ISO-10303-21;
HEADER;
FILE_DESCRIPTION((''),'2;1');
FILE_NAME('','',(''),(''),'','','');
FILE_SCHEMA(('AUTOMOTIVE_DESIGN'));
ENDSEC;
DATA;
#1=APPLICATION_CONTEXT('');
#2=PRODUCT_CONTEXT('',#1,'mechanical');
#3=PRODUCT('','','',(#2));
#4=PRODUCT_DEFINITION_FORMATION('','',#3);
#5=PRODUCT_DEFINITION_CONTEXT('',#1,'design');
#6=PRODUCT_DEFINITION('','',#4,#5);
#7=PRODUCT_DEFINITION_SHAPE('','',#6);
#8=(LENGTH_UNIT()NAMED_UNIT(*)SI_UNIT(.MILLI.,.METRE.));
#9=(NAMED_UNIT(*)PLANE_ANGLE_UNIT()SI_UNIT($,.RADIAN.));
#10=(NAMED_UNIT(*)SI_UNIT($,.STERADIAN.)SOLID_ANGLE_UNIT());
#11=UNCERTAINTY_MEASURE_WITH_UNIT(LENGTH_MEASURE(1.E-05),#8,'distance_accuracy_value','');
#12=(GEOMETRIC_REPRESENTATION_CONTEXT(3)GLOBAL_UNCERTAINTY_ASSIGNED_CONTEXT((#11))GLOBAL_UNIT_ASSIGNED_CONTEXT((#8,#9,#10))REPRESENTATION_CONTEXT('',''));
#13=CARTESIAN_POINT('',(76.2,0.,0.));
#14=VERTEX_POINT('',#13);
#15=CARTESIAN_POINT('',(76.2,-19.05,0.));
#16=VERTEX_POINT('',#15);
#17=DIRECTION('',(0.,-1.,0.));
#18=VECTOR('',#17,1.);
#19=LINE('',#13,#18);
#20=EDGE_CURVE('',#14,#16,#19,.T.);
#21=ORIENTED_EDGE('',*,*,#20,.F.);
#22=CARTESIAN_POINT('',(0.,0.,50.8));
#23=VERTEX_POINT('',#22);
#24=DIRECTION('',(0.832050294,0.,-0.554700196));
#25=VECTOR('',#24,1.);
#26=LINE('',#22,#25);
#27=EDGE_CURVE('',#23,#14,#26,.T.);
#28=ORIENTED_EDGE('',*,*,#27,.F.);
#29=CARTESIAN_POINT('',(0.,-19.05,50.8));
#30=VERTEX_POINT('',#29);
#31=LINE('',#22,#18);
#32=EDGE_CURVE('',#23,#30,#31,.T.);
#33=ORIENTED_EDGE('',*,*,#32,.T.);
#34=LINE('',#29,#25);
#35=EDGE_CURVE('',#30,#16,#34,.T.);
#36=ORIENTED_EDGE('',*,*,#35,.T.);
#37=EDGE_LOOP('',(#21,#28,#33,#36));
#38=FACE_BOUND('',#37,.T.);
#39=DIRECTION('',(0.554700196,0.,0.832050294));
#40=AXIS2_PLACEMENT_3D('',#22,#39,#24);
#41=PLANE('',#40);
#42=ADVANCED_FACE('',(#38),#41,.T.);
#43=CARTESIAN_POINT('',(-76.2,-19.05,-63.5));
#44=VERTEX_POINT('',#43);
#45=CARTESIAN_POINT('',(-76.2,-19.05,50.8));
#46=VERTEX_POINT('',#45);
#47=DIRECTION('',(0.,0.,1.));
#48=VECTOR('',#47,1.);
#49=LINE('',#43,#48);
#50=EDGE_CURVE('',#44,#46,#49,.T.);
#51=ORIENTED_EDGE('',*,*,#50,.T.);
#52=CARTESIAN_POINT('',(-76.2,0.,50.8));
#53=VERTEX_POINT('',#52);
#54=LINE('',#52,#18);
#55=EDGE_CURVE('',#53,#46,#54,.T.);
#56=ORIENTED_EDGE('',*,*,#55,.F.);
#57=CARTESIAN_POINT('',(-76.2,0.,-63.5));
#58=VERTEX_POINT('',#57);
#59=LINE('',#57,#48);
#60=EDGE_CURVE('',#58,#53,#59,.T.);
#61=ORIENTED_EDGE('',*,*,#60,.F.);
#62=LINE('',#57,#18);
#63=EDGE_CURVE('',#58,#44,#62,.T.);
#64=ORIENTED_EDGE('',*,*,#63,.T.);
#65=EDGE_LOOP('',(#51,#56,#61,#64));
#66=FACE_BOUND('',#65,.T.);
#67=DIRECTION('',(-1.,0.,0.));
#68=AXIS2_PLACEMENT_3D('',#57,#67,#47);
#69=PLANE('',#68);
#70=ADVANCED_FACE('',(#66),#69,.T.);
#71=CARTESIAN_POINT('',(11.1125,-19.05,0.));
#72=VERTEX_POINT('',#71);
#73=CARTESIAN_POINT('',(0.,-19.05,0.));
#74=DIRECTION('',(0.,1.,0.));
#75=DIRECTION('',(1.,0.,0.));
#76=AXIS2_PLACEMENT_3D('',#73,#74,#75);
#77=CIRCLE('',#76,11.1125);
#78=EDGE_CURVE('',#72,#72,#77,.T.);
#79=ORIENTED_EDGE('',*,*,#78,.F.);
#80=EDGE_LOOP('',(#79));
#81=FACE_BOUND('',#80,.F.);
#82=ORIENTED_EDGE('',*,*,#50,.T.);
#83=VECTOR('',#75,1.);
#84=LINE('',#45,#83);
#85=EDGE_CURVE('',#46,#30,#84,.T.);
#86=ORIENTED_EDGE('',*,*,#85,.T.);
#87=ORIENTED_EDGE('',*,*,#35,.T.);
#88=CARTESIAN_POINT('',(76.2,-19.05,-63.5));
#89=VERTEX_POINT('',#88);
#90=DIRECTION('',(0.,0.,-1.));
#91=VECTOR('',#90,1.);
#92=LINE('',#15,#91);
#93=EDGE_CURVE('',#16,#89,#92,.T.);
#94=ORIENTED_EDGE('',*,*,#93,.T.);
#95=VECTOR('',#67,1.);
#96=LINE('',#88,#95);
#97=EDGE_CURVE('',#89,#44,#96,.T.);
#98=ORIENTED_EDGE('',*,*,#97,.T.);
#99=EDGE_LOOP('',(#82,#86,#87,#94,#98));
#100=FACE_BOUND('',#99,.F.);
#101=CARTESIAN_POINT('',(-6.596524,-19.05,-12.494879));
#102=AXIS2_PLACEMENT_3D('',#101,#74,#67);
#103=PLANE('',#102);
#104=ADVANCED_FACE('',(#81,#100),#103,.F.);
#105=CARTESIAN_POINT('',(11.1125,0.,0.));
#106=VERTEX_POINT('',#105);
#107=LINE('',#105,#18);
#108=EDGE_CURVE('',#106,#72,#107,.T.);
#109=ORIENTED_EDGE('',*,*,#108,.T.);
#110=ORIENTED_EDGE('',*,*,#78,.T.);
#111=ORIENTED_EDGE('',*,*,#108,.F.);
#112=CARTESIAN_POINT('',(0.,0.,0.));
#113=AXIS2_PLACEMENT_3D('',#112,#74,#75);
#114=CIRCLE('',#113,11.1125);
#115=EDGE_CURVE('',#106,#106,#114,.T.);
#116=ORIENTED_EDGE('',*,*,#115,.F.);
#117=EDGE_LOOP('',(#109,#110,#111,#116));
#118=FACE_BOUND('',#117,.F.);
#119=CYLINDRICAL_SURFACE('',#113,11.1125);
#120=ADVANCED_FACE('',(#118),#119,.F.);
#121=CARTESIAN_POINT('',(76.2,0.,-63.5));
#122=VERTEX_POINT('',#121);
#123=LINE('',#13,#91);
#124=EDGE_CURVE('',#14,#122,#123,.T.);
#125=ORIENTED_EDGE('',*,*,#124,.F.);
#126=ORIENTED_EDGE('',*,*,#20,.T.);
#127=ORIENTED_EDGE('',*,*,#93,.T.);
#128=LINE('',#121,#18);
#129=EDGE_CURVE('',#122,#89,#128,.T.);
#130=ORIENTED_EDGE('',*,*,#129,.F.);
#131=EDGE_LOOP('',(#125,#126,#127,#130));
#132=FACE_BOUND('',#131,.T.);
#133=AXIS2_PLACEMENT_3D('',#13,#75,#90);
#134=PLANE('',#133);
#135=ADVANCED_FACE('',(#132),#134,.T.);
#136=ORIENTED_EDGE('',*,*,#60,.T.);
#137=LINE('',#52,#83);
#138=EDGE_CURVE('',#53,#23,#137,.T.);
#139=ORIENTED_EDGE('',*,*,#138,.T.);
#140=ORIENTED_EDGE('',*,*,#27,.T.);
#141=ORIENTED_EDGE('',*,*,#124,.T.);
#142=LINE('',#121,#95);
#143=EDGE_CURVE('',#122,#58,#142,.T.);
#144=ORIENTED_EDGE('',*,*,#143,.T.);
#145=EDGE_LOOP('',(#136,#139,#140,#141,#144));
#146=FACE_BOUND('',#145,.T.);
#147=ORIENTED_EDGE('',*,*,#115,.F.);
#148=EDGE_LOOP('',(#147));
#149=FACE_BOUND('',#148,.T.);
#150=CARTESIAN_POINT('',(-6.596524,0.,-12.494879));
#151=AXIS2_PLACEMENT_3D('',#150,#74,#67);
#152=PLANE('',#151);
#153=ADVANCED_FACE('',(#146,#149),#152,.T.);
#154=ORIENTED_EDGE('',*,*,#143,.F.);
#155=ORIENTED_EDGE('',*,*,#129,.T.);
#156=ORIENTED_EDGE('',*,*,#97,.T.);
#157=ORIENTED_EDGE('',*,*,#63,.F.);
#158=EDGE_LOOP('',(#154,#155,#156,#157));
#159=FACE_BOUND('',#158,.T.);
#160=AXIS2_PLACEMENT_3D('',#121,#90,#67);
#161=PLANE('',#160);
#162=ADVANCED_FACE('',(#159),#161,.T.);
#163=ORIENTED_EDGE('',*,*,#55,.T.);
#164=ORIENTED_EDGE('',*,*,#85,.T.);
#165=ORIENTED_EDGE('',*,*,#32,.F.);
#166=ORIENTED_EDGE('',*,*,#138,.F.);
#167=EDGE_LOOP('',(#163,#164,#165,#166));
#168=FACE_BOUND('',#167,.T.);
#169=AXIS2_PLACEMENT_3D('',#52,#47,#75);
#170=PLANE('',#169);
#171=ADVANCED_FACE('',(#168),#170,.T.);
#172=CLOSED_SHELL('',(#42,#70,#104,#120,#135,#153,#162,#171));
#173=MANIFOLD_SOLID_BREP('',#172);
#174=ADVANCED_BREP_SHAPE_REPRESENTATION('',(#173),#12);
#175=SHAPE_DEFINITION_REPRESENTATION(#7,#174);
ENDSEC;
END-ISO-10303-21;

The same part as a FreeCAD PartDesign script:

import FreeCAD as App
import Part
import Sketcher

V = App.Vector
Q = App.Units.Quantity

doc = App.newDocument("Part")
params = doc.addObject("Spreadsheet::Sheet", "Params")
for row, (alias, value) in enumerate([
    ("sketch1_width", "6 in"),
    ("sketch1_width2", "3 in"),
    ("sketch1_height", "4.5 in"),
    ("sketch1_height2", "2.5 in"),
    ("pad1_length", "0.75 in"),
    ("sketch2_diameter", "0.875 in"),
], start=1):
    params.set(f"A{row}", alias)
    params.set(f"B{row}", "=" + value)
    params.setAlias(f"B{row}", alias)

body = doc.addObject("PartDesign::Body", "Body")

sketch1 = body.newObject("Sketcher::SketchObject", "Sketch")
sketch1.AttachmentSupport = (doc.getObject("XZ_Plane"), [""])
sketch1.MapMode = "FlatFace"
sketch1.addGeometry([
    Part.LineSegment(V(-76, 51, 0), V(-76, -64, 0)),
    Part.LineSegment(V(-76, -64, 0), V(76, -64, 0)),
    Part.LineSegment(V(76, -64, 0), V(76, 0, 0)),
    Part.LineSegment(V(76, 0, 0), V(0, 51, 0)),
    Part.LineSegment(V(0, 51, 0), V(-76, 51, 0)),
], False)
sketch1.addConstraint([
    Sketcher.Constraint("Coincident", 0, 2, 1, 1),
    Sketcher.Constraint("Coincident", 1, 2, 2, 1),
    Sketcher.Constraint("Coincident", 2, 2, 3, 1),
    Sketcher.Constraint("Coincident", 3, 2, 4, 1),
    Sketcher.Constraint("Coincident", 4, 2, 0, 1),
    Sketcher.Constraint("Vertical", 0),
    Sketcher.Constraint("Horizontal", 1),
    Sketcher.Constraint("Vertical", 2),
    Sketcher.Constraint("Horizontal", 4),
    Sketcher.Constraint("PointOnObject", 2, 2, -1),
    Sketcher.Constraint("PointOnObject", 3, 2, -2),
    Sketcher.Constraint("DistanceX", 1, 1, 1, 2, Q("6 in")),
    Sketcher.Constraint("DistanceX", 4, 2, 4, 1, Q("3 in")),
    Sketcher.Constraint("DistanceY", 0, 2, 0, 1, Q("4.5 in")),
    Sketcher.Constraint("DistanceY", 2, 1, 2, 2, Q("2.5 in")),
])
sketch1.setExpression("Constraints[11]", "Params.sketch1_width")
sketch1.setExpression("Constraints[12]", "Params.sketch1_width2")
sketch1.setExpression("Constraints[13]", "Params.sketch1_height")
sketch1.setExpression("Constraints[14]", "Params.sketch1_height2")
pad1 = body.newObject("PartDesign::Pad", "Pad")
pad1.Profile = sketch1
pad1.setExpression("Length", "Params.pad1_length")

sketch2 = body.newObject("Sketcher::SketchObject", "Sketch001")
sketch2.AttachmentSupport = (doc.getObject("XZ_Plane"), [""])
sketch2.MapMode = "FlatFace"
sketch2.addGeometry(Part.Circle(V(0, 0, 0), V(0, 0, 1), 11), False)
sketch2.addConstraint([
    Sketcher.Constraint("Coincident", 0, 3, -1, 1),
    Sketcher.Constraint("Diameter", 0, Q("0.875 in")),
])
sketch2.setExpression("Constraints[1]", "Params.sketch2_diameter")
pocket1 = body.newObject("PartDesign::Pocket", "Pocket")
pocket1.Profile = sketch2
pocket1.Type = "ThroughAll"
pocket1.Reversed = True

doc.recompute()
